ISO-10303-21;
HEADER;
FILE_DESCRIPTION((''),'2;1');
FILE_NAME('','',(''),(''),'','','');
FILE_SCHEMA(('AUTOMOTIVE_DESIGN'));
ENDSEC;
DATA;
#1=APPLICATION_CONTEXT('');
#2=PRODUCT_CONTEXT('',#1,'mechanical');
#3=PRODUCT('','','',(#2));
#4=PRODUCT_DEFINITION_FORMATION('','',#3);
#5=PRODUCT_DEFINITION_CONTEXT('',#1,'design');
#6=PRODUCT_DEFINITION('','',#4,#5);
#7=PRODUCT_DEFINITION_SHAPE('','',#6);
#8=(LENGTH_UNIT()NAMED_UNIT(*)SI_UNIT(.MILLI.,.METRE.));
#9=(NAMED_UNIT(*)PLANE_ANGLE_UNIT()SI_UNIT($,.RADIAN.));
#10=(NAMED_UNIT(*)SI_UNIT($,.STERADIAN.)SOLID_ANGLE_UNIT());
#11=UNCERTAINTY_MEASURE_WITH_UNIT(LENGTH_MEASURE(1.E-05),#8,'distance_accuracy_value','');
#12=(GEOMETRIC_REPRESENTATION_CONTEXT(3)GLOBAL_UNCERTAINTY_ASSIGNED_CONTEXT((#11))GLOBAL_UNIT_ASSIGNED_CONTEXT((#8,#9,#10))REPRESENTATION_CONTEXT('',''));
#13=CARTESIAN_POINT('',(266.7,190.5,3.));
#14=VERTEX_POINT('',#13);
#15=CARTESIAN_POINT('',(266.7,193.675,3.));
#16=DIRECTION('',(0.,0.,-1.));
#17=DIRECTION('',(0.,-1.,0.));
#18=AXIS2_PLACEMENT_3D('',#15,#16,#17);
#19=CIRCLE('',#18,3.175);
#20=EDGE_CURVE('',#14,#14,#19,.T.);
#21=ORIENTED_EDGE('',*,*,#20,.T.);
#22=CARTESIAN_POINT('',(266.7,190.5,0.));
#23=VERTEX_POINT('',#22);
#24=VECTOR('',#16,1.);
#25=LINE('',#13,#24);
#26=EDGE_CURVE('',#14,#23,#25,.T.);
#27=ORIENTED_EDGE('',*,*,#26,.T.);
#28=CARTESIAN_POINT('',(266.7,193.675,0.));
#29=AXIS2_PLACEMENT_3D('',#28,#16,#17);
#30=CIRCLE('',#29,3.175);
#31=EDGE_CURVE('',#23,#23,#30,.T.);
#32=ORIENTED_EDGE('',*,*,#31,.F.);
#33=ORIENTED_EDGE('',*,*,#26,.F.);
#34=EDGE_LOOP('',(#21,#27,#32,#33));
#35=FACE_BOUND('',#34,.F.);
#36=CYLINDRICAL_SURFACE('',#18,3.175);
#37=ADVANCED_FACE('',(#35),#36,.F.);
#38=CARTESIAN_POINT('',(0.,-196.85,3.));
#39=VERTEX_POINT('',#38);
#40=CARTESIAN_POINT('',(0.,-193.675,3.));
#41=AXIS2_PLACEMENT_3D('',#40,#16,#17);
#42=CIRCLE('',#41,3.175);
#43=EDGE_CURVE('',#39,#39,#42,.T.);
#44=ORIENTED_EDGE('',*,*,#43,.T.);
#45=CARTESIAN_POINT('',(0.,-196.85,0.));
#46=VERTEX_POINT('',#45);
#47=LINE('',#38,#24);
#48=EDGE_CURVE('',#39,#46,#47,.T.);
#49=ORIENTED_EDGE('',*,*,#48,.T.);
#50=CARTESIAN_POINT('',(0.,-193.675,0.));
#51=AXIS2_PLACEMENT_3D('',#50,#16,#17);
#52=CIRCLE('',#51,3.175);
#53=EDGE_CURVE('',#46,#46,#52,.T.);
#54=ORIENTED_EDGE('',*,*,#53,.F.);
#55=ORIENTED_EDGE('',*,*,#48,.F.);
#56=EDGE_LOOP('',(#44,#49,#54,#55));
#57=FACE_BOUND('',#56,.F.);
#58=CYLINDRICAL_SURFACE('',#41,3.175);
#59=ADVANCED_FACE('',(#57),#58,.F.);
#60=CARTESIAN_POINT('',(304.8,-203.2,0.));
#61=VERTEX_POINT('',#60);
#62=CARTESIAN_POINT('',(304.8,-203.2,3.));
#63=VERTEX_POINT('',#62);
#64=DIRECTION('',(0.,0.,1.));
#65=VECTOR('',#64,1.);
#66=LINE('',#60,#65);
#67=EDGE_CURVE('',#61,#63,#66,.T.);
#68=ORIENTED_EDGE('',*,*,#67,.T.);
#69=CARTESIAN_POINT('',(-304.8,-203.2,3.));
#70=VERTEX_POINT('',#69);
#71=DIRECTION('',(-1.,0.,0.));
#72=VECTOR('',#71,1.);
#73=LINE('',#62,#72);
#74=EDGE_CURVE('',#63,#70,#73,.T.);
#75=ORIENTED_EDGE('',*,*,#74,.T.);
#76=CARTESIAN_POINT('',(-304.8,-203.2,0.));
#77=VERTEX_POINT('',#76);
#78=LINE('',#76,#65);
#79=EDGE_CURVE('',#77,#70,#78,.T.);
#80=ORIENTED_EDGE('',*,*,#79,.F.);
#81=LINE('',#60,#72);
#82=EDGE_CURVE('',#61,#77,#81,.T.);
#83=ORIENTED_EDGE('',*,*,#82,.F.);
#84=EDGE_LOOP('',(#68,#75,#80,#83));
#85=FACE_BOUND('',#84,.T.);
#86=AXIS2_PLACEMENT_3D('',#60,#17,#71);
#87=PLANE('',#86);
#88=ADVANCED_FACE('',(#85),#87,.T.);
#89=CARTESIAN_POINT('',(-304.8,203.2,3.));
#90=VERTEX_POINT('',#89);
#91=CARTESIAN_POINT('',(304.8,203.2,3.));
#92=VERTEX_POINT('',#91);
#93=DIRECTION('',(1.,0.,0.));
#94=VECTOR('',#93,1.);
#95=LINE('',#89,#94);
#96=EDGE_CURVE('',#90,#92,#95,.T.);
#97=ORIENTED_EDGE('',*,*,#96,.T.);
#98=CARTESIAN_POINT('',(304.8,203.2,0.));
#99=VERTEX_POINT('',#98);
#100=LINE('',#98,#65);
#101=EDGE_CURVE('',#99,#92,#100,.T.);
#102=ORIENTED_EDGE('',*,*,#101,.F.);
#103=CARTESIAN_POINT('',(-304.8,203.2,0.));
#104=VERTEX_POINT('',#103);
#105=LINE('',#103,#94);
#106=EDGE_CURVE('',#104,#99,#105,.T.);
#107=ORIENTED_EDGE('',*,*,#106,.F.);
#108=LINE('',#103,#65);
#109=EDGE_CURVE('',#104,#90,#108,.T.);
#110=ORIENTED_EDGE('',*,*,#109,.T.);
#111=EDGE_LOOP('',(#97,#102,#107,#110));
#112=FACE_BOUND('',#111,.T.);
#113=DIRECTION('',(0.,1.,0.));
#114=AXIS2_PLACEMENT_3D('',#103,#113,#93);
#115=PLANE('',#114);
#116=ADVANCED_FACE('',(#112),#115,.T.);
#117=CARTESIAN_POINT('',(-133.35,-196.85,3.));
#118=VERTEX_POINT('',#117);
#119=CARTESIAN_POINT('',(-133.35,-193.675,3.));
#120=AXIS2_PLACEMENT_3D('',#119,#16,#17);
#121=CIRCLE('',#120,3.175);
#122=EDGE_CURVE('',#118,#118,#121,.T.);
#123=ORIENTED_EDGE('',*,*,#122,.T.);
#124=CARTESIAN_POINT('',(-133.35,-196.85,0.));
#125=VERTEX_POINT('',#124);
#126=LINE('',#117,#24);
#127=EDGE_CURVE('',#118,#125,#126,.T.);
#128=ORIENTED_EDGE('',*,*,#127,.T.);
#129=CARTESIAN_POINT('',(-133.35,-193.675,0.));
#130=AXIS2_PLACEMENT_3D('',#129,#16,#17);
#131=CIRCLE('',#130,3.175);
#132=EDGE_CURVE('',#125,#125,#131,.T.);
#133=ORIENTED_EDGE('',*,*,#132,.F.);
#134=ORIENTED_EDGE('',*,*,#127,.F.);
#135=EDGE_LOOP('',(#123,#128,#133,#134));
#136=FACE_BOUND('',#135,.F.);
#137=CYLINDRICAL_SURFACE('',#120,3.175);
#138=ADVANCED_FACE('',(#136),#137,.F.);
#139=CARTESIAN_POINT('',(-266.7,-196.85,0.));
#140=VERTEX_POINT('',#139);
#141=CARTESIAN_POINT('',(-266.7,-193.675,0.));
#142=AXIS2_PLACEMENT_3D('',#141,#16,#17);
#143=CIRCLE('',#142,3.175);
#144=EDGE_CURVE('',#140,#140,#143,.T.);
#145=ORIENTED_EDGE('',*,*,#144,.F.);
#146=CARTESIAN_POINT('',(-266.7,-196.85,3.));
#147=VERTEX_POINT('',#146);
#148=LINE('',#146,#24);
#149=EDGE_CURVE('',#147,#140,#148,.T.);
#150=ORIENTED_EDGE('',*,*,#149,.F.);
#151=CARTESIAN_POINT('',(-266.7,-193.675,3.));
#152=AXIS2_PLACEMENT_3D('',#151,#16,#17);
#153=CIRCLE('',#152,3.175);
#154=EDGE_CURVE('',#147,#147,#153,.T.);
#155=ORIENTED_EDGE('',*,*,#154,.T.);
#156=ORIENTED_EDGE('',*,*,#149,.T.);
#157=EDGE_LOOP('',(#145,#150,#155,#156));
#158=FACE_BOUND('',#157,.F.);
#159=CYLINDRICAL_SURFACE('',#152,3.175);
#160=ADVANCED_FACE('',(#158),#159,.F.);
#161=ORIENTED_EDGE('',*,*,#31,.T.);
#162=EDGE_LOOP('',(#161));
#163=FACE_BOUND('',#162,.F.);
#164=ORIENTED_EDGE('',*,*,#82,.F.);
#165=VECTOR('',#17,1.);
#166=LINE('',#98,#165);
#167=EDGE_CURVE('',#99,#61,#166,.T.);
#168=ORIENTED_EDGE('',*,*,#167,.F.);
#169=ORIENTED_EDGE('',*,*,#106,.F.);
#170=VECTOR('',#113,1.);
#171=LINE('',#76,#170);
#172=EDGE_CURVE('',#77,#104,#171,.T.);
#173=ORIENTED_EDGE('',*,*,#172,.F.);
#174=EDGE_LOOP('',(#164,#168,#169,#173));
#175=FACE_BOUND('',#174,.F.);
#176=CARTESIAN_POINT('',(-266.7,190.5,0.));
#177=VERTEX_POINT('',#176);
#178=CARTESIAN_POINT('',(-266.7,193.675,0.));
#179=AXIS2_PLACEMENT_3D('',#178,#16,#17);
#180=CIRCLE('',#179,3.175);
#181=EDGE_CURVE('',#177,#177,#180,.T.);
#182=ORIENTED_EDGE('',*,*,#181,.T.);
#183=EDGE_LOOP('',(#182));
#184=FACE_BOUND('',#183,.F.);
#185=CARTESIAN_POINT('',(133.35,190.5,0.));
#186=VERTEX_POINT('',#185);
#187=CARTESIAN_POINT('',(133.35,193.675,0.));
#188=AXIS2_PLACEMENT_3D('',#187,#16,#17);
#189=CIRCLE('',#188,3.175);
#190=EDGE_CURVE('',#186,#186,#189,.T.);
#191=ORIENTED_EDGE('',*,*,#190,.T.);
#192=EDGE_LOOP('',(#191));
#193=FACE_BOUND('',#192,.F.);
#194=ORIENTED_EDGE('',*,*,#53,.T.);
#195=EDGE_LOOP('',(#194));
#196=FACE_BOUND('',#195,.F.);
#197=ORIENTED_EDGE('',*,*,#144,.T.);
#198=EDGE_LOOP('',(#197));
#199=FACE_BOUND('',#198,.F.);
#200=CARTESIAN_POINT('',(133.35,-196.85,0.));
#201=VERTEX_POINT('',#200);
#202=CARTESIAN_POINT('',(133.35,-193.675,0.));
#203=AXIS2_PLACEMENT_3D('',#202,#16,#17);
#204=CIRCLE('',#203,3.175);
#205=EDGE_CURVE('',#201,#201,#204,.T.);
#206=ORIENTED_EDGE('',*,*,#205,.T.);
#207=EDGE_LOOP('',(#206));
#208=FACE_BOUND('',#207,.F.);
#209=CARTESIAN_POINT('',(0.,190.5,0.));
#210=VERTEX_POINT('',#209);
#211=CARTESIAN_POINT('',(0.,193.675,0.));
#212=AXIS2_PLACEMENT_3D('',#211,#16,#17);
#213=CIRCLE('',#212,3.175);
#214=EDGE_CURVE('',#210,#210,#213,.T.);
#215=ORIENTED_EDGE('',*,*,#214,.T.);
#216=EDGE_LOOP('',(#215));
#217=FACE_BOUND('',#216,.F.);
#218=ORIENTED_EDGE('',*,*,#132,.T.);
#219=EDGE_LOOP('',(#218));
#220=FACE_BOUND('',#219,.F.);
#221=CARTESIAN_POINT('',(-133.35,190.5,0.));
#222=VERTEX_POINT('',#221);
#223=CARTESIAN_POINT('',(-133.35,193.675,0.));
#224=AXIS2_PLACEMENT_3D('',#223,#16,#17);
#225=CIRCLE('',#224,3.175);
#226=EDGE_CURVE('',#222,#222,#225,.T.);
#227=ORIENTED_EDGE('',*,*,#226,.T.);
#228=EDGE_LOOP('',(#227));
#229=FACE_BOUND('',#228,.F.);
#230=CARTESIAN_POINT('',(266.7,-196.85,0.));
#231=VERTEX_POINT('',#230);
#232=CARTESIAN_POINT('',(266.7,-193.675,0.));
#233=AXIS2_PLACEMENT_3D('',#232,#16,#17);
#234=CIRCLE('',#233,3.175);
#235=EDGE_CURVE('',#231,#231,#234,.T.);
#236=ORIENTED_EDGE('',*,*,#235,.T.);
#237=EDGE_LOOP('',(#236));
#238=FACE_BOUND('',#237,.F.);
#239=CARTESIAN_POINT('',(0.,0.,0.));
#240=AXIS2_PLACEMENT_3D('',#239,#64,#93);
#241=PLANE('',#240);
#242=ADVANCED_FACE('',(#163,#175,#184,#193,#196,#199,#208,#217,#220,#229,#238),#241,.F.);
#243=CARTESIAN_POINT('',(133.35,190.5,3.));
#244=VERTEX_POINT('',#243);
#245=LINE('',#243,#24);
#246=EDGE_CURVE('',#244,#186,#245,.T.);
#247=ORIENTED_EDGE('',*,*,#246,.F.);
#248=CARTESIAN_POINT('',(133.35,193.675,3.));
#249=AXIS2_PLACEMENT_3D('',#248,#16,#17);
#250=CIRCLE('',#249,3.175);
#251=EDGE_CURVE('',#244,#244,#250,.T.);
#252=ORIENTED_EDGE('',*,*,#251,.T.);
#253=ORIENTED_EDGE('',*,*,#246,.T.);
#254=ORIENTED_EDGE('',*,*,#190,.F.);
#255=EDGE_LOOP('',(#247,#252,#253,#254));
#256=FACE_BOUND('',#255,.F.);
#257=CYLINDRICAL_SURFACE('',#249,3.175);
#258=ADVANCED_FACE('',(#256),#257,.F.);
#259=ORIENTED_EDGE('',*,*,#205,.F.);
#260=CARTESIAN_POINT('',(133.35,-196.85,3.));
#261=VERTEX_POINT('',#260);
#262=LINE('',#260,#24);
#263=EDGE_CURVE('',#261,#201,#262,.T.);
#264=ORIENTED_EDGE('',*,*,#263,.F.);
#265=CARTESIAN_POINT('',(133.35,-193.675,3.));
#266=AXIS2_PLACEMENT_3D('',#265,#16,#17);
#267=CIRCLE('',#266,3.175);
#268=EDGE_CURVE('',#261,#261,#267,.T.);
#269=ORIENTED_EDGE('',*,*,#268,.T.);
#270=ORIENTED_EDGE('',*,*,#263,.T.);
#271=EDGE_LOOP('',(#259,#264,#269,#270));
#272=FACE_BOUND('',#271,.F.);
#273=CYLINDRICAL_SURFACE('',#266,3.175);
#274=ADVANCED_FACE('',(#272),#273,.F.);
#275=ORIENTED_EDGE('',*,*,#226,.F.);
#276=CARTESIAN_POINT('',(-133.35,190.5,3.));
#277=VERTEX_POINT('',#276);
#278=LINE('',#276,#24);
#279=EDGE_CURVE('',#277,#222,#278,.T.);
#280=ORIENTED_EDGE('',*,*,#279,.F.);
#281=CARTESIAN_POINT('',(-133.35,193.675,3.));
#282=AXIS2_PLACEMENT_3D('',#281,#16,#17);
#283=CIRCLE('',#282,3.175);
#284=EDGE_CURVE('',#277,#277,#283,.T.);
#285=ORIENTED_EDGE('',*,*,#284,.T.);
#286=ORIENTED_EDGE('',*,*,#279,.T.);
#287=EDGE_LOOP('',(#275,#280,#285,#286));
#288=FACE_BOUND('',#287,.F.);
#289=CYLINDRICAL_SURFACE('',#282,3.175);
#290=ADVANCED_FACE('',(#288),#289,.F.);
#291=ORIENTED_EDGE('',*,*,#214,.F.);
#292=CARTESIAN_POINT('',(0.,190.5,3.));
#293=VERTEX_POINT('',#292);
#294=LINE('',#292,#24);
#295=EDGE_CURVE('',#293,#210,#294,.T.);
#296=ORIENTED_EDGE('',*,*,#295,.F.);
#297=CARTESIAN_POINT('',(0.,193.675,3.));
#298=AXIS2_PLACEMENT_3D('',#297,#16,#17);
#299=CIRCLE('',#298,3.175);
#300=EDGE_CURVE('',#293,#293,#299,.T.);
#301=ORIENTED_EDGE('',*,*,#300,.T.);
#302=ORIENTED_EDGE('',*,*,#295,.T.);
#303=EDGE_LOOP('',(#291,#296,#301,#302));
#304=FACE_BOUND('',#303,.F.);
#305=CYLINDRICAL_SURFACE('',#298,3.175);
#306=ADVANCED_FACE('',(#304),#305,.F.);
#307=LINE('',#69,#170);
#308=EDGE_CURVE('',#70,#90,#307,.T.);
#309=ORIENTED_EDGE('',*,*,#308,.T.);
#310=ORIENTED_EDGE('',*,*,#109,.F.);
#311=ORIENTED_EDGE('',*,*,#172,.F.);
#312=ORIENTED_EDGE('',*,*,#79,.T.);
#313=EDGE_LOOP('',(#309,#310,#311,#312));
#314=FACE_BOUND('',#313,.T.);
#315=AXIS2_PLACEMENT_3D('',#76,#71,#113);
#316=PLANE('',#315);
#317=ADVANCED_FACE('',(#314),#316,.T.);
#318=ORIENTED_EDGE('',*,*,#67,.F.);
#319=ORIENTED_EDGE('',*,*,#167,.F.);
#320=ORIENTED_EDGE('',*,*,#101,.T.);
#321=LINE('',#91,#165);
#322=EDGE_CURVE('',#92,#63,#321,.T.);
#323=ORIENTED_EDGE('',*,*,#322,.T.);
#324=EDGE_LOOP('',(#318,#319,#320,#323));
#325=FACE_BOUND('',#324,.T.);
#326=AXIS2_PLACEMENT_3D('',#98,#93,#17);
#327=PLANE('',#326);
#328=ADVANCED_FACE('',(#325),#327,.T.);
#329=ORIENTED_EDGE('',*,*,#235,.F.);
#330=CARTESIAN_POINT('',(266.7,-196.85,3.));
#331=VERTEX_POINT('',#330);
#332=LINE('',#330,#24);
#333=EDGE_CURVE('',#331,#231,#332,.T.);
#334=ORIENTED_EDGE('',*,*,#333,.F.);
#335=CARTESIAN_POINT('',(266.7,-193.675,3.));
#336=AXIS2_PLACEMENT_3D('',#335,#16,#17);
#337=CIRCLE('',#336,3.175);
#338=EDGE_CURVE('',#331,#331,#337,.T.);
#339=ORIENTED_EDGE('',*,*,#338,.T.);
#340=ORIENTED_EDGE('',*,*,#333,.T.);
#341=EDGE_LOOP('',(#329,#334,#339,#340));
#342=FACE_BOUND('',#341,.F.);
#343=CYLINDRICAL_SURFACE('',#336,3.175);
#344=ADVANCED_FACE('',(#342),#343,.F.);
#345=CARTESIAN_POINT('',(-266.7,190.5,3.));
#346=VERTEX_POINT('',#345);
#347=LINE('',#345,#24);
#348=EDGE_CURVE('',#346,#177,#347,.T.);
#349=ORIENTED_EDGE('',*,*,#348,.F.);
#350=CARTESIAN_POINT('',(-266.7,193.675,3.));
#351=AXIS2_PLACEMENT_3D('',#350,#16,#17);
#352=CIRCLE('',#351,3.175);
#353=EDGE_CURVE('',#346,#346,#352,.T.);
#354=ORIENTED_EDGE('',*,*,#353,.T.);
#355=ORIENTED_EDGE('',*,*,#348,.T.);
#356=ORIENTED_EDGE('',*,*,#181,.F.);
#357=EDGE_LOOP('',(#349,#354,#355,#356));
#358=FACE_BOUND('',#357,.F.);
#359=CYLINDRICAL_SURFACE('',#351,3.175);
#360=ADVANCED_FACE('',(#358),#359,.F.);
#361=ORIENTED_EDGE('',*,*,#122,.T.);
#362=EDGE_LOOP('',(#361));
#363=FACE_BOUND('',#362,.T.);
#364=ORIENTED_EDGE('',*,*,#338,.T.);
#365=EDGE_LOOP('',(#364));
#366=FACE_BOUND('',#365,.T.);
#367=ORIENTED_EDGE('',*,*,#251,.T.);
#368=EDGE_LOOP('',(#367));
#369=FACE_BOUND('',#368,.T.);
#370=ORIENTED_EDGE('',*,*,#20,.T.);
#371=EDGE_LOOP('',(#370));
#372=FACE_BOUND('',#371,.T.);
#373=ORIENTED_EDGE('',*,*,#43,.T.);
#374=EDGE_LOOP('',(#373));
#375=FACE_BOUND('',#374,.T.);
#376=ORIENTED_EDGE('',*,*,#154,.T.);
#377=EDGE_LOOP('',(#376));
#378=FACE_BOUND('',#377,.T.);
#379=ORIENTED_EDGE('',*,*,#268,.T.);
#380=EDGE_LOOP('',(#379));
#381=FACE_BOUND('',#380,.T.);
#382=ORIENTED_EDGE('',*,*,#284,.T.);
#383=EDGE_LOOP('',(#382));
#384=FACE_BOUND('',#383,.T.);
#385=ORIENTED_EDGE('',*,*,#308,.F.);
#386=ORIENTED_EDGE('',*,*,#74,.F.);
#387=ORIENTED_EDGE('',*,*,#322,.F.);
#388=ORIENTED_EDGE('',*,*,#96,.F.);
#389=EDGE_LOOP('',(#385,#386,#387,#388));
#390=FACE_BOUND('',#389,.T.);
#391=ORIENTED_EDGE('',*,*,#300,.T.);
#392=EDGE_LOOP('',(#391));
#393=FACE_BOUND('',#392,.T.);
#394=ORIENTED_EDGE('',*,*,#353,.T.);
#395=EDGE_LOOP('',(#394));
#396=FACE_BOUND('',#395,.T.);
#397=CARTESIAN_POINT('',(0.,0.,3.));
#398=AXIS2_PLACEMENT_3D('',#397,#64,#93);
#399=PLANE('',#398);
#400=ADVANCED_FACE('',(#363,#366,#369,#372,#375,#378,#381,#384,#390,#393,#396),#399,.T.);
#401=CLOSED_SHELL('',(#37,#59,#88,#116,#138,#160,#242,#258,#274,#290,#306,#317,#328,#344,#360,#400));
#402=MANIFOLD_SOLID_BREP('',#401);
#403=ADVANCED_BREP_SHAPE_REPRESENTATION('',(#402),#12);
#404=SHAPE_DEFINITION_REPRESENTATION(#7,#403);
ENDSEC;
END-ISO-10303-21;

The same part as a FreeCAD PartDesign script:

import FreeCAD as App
import Part
import Sketcher

V = App.Vector
Q = App.Units.Quantity

doc = App.newDocument("Part")
body = doc.addObject("PartDesign::Body", "Body")

# Sketch on XY plane
sketch1 = doc.addObject("Sketcher::SketchObject", "Sketch")
body.addObject(sketch1)
sketch1.AttachmentSupport = (doc.XY_Plane, [""])
sketch1.MapMode = "FlatFace"
sketch1.addGeometry(Part.LineSegment(V(305, 203, 0), V(-305, 203, 0)), False)
sketch1.addGeometry(Part.LineSegment(V(-305, 203, 0), V(-305, -203, 0)), False)
sketch1.addGeometry(Part.LineSegment(V(-305, -203, 0), V(305, -203, 0)), False)
sketch1.addGeometry(Part.LineSegment(V(305, -203, 0), V(305, 203, 0)), False)
sketch1.addConstraint(Sketcher.Constraint("Coincident", 0, 2, 1, 1))
sketch1.addConstraint(Sketcher.Constraint("Coincident", 1, 2, 2, 1))
sketch1.addConstraint(Sketcher.Constraint("Coincident", 2, 2, 3, 1))
sketch1.addConstraint(Sketcher.Constraint("Coincident", 3, 2, 0, 1))
sketch1.addConstraint(Sketcher.Constraint("Horizontal", 0))
sketch1.addConstraint(Sketcher.Constraint("Vertical", 1))
sketch1.addConstraint(Sketcher.Constraint("Horizontal", 2))
sketch1.addConstraint(Sketcher.Constraint("Vertical", 3))
sketch1.addConstraint(Sketcher.Constraint("Symmetric", 0, 2, 2, 2, -1, 1))
sketch1.addConstraint(Sketcher.Constraint("DistanceX", 0, 2, 0, 1, Q("24 in")))
sketch1.addConstraint(Sketcher.Constraint("DistanceY", 1, 2, 1, 1, Q("16 in")))
pad1 = doc.addObject("PartDesign::Pad", "Pad")
body.addObject(pad1)
pad1.Profile = sketch1
pad1.Length = Q("0.1181102 in")

# Sketch on XY plane
sketch2 = doc.addObject("Sketcher::SketchObject", "Sketch001")
body.addObject(sketch2)
sketch2.AttachmentSupport = (doc.XY_Plane, [""])
sketch2.MapMode = "FlatFace"
sketch2.AttachmentOffset = App.Placement(V(0, 0, 0.1181102 * 25.4), App.Rotation())
sketch2.addGeometry(Part.Circle(V(-266.7, -193.7, 0), V(0, 0, 1), 3.2), False)
sketch2.addGeometry(Part.Circle(V(-133.3, -193.7, 0), V(0, 0, 1), 3.2), False)
sketch2.addGeometry(Part.Circle(V(0, -193.7, 0), V(0, 0, 1), 3.2), False)
sketch2.addGeometry(Part.Circle(V(133.3, -193.7, 0), V(0, 0, 1), 3.2), False)
sketch2.addGeometry(Part.Circle(V(266.7, -193.7, 0), V(0, 0, 1), 3.2), False)
sketch2.addGeometry(Part.Circle(V(-266.7, 193.7, 0), V(0, 0, 1), 3.2), False)
sketch2.addGeometry(Part.Circle(V(-133.3, 193.7, 0), V(0, 0, 1), 3.2), False)
sketch2.addGeometry(Part.Circle(V(0, 193.7, 0), V(0, 0, 1), 3.2), False)
sketch2.addGeometry(Part.Circle(V(133.3, 193.7, 0), V(0, 0, 1), 3.2), False)
sketch2.addGeometry(Part.Circle(V(266.7, 193.7, 0), V(0, 0, 1), 3.2), False)
sketch2.addConstraint(Sketcher.Constraint("Equal", 0, 1))
sketch2.addConstraint(Sketcher.Constraint("Equal", 1, 2))
sketch2.addConstraint(Sketcher.Constraint("Equal", 2, 3))
sketch2.addConstraint(Sketcher.Constraint("Equal", 3, 4))
sketch2.addConstraint(Sketcher.Constraint("Equal", 4, 5))
sketch2.addConstraint(Sketcher.Constraint("Equal", 5, 6))
sketch2.addConstraint(Sketcher.Constraint("Equal", 6, 7))
sketch2.addConstraint(Sketcher.Constraint("Equal", 7, 8))
sketch2.addConstraint(Sketcher.Constraint("Equal", 8, 9))
sketch2.addConstraint(Sketcher.Constraint("Symmetric", 4, 3, 5, 3, -1, 1))
sketch2.addConstraint(Sketcher.Constraint("Symmetric", 3, 3, 6, 3, -1, 1))
sketch2.addConstraint(Sketcher.Constraint("Symmetric", 2, 3, 7, 3, -1, 1))
sketch2.addConstraint(Sketcher.Constraint("Symmetric", 1, 3, 8, 3, -1, 1))
sketch2.addConstraint(Sketcher.Constraint("Symmetric", 0, 3, 9, 3, -1, 1))
sketch2.addConstraint(Sketcher.Constraint("Symmetric", 1, 3, 3, 3, -2))
sketch2.addConstraint(Sketcher.Constraint("Symmetric", 0, 3, 4, 3, -2))
sketch2.addConstraint(Sketcher.Constraint("PointOnObject", 2, 3, -2))
sketch2.addConstraint(Sketcher.Constraint("Horizontal", 0, 3, 1, 3))
sketch2.addConstraint(Sketcher.Constraint("Horizontal", 1, 3, 2, 3))
sketch2.addConstraint(Sketcher.Constraint("Diameter", 0, Q("0.25 in")))
sketch2.addConstraint(Sketcher.Constraint("DistanceX", 0, 3, 4, 3, Q("21 in")))
sketch2.addConstraint(Sketcher.Constraint("DistanceX", 1, 3, 3, 3, Q("10.5 in")))
sketch2.addConstraint(Sketcher.Constraint("DistanceY", 0, 3, 5, 3, Q("15.25 in")))
doc.recompute()
hole = doc.addObject("PartDesign::Hole", "Hole")
body.addObject(hole)
hole.Profile = sketch2
hole.ThreadType = "None"
hole.Diameter = Q("0.25 in")
hole.DepthType = "ThroughAll"

doc.recompute()
